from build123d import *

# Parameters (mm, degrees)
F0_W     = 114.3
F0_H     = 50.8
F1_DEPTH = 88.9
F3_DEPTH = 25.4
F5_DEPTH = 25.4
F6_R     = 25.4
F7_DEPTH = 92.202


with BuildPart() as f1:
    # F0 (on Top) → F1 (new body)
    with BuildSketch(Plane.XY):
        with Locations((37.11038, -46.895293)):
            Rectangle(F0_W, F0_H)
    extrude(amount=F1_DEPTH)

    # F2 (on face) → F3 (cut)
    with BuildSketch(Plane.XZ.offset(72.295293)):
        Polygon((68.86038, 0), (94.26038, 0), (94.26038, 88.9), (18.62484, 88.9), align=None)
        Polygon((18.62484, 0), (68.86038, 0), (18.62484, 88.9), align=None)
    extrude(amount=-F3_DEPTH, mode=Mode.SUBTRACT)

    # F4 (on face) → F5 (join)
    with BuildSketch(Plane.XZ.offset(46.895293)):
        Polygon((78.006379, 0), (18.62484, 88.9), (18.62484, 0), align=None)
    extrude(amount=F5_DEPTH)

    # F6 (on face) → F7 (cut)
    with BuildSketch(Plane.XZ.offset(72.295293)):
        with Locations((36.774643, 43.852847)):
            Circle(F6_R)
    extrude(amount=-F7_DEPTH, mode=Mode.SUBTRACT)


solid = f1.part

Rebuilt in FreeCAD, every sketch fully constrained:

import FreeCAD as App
import Part
import Sketcher
Q = App.Units.Quantity


def add_polygon(sketch, points):
    """Adds a closed chain of lines whose ends are joined by coincident constraints."""
    first, n = sketch.GeometryCount, len(points)
    for a, b in zip(points, points[1:] + points[:1]):
        sketch.addGeometry(Part.LineSegment(App.Vector(*a, 0), App.Vector(*b, 0)), False)
    for i in range(n):
        sketch.addConstraint(Sketcher.Constraint("Coincident", first + i, 2, first + (i + 1) % n, 1))

doc = App.newDocument("Part")
body = doc.addObject("PartDesign::Body", "Body")

sketch1 = body.newObject("Sketcher::SketchObject", "Sketch")
sketch1.AttachmentSupport = (doc.getObject("XY_Plane"), [""])
sketch1.MapMode = "FlatFace"
add_polygon(sketch1, [(-20, -21), (-20, -72), (94, -72), (94, -21)])
sketch1.addConstraint(Sketcher.Constraint("Vertical", 0))
sketch1.addConstraint(Sketcher.Constraint("Horizontal", 1))
sketch1.addConstraint(Sketcher.Constraint("Vertical", 2))
sketch1.addConstraint(Sketcher.Constraint("Horizontal", 3))
sketch1.addConstraint(Sketcher.Constraint("DistanceY", 0, 2, 0, 1, Q("2 in")))
sketch1.addConstraint(Sketcher.Constraint("DistanceX", 1, 1, 1, 2, Q("4.5 in")))
sketch1.addConstraint(Sketcher.Constraint("DistanceX", 0, 2, -1, 1, 20.03962))
sketch1.addConstraint(Sketcher.Constraint("DistanceY", 0, 2, -1, 1, 72.295293))
pad1 = body.newObject("PartDesign::Pad", "Pad")
pad1.Profile = sketch1
pad1.Length = Q("3.5 in")

sketch2 = body.newObject("Sketcher::SketchObject", "Sketch001")
sketch2.AttachmentSupport = (doc.getObject("XZ_Plane"), [""])
sketch2.MapMode = "FlatFace"
sketch2.AttachmentOffset = App.Placement(App.Vector(0, 0, 72.295293), App.Rotation())
add_polygon(sketch2, [(94, 0), (94, 89), (19, 89), (19, 0)])
sketch2.addConstraint(Sketcher.Constraint("Vertical", 0))
sketch2.addConstraint(Sketcher.Constraint("Horizontal", 1))
sketch2.addConstraint(Sketcher.Constraint("Vertical", 2))
sketch2.addConstraint(Sketcher.Constraint("Horizontal", 3))
sketch2.addConstraint(Sketcher.Constraint("PointOnObject", 2, 2, -1))
sketch2.addConstraint(Sketcher.Constraint("DistanceY", 0, 1, 0, 2, Q("3.5 in")))
sketch2.addConstraint(Sketcher.Constraint("DistanceX", 1, 2, 1, 1, 75.63554))
sketch2.addConstraint(Sketcher.Constraint("DistanceX", -1, 1, 0, 2, 94.26038))
pocket1 = body.newObject("PartDesign::Pocket", "Pocket")
pocket1.Profile = sketch2
pocket1.Length = Q("1 in")

sketch3 = body.newObject("Sketcher::SketchObject", "Sketch002")
sketch3.AttachmentSupport = (doc.getObject("XZ_Plane"), [""])
sketch3.MapMode = "FlatFace"
sketch3.AttachmentOffset = App.Placement(App.Vector(0, 0, 46.895293), App.Rotation())
add_polygon(sketch3, [(78, 0), (19, 89), (19, 0)])
sketch3.addConstraint(Sketcher.Constraint("Vertical", 1))
sketch3.addConstraint(Sketcher.Constraint("Horizontal", 2))
sketch3.addConstraint(Sketcher.Constraint("PointOnObject", 1, 2, -1))
sketch3.addConstraint(Sketcher.Constraint("DistanceY", 1, 2, 1, 1, Q("3.5 in")))
sketch3.addConstraint(Sketcher.Constraint("DistanceX", 2, 1, 2, 2, 59.381539))
sketch3.addConstraint(Sketcher.Constraint("DistanceX", -1, 1, 0, 2, 18.62484))
pad2 = body.newObject("PartDesign::Pad", "Pad001")
pad2.Profile = sketch3
pad2.Length = Q("1 in")

sketch4 = body.newObject("Sketcher::SketchObject", "Sketch003")
sketch4.AttachmentSupport = (doc.getObject("XZ_Plane"), [""])
sketch4.MapMode = "FlatFace"
sketch4.AttachmentOffset = App.Placement(App.Vector(0, 0, 72.295293), App.Rotation())
sketch4.addGeometry(Part.Circle(App.Vector(37, 44, 0), App.Vector(0, 0, 1), 25), False)
sketch4.addConstraint(Sketcher.Constraint("Diameter", 0, Q("2 in")))
sketch4.addConstraint(Sketcher.Constraint("DistanceX", -1, 1, 0, 3, 36.774643))
sketch4.addConstraint(Sketcher.Constraint("DistanceY", -1, 1, 0, 3, 43.852847))
pocket2 = body.newObject("PartDesign::Pocket", "Pocket001")
pocket2.Profile = sketch4
pocket2.Length = Q("3.63 in")

doc.recompute()
